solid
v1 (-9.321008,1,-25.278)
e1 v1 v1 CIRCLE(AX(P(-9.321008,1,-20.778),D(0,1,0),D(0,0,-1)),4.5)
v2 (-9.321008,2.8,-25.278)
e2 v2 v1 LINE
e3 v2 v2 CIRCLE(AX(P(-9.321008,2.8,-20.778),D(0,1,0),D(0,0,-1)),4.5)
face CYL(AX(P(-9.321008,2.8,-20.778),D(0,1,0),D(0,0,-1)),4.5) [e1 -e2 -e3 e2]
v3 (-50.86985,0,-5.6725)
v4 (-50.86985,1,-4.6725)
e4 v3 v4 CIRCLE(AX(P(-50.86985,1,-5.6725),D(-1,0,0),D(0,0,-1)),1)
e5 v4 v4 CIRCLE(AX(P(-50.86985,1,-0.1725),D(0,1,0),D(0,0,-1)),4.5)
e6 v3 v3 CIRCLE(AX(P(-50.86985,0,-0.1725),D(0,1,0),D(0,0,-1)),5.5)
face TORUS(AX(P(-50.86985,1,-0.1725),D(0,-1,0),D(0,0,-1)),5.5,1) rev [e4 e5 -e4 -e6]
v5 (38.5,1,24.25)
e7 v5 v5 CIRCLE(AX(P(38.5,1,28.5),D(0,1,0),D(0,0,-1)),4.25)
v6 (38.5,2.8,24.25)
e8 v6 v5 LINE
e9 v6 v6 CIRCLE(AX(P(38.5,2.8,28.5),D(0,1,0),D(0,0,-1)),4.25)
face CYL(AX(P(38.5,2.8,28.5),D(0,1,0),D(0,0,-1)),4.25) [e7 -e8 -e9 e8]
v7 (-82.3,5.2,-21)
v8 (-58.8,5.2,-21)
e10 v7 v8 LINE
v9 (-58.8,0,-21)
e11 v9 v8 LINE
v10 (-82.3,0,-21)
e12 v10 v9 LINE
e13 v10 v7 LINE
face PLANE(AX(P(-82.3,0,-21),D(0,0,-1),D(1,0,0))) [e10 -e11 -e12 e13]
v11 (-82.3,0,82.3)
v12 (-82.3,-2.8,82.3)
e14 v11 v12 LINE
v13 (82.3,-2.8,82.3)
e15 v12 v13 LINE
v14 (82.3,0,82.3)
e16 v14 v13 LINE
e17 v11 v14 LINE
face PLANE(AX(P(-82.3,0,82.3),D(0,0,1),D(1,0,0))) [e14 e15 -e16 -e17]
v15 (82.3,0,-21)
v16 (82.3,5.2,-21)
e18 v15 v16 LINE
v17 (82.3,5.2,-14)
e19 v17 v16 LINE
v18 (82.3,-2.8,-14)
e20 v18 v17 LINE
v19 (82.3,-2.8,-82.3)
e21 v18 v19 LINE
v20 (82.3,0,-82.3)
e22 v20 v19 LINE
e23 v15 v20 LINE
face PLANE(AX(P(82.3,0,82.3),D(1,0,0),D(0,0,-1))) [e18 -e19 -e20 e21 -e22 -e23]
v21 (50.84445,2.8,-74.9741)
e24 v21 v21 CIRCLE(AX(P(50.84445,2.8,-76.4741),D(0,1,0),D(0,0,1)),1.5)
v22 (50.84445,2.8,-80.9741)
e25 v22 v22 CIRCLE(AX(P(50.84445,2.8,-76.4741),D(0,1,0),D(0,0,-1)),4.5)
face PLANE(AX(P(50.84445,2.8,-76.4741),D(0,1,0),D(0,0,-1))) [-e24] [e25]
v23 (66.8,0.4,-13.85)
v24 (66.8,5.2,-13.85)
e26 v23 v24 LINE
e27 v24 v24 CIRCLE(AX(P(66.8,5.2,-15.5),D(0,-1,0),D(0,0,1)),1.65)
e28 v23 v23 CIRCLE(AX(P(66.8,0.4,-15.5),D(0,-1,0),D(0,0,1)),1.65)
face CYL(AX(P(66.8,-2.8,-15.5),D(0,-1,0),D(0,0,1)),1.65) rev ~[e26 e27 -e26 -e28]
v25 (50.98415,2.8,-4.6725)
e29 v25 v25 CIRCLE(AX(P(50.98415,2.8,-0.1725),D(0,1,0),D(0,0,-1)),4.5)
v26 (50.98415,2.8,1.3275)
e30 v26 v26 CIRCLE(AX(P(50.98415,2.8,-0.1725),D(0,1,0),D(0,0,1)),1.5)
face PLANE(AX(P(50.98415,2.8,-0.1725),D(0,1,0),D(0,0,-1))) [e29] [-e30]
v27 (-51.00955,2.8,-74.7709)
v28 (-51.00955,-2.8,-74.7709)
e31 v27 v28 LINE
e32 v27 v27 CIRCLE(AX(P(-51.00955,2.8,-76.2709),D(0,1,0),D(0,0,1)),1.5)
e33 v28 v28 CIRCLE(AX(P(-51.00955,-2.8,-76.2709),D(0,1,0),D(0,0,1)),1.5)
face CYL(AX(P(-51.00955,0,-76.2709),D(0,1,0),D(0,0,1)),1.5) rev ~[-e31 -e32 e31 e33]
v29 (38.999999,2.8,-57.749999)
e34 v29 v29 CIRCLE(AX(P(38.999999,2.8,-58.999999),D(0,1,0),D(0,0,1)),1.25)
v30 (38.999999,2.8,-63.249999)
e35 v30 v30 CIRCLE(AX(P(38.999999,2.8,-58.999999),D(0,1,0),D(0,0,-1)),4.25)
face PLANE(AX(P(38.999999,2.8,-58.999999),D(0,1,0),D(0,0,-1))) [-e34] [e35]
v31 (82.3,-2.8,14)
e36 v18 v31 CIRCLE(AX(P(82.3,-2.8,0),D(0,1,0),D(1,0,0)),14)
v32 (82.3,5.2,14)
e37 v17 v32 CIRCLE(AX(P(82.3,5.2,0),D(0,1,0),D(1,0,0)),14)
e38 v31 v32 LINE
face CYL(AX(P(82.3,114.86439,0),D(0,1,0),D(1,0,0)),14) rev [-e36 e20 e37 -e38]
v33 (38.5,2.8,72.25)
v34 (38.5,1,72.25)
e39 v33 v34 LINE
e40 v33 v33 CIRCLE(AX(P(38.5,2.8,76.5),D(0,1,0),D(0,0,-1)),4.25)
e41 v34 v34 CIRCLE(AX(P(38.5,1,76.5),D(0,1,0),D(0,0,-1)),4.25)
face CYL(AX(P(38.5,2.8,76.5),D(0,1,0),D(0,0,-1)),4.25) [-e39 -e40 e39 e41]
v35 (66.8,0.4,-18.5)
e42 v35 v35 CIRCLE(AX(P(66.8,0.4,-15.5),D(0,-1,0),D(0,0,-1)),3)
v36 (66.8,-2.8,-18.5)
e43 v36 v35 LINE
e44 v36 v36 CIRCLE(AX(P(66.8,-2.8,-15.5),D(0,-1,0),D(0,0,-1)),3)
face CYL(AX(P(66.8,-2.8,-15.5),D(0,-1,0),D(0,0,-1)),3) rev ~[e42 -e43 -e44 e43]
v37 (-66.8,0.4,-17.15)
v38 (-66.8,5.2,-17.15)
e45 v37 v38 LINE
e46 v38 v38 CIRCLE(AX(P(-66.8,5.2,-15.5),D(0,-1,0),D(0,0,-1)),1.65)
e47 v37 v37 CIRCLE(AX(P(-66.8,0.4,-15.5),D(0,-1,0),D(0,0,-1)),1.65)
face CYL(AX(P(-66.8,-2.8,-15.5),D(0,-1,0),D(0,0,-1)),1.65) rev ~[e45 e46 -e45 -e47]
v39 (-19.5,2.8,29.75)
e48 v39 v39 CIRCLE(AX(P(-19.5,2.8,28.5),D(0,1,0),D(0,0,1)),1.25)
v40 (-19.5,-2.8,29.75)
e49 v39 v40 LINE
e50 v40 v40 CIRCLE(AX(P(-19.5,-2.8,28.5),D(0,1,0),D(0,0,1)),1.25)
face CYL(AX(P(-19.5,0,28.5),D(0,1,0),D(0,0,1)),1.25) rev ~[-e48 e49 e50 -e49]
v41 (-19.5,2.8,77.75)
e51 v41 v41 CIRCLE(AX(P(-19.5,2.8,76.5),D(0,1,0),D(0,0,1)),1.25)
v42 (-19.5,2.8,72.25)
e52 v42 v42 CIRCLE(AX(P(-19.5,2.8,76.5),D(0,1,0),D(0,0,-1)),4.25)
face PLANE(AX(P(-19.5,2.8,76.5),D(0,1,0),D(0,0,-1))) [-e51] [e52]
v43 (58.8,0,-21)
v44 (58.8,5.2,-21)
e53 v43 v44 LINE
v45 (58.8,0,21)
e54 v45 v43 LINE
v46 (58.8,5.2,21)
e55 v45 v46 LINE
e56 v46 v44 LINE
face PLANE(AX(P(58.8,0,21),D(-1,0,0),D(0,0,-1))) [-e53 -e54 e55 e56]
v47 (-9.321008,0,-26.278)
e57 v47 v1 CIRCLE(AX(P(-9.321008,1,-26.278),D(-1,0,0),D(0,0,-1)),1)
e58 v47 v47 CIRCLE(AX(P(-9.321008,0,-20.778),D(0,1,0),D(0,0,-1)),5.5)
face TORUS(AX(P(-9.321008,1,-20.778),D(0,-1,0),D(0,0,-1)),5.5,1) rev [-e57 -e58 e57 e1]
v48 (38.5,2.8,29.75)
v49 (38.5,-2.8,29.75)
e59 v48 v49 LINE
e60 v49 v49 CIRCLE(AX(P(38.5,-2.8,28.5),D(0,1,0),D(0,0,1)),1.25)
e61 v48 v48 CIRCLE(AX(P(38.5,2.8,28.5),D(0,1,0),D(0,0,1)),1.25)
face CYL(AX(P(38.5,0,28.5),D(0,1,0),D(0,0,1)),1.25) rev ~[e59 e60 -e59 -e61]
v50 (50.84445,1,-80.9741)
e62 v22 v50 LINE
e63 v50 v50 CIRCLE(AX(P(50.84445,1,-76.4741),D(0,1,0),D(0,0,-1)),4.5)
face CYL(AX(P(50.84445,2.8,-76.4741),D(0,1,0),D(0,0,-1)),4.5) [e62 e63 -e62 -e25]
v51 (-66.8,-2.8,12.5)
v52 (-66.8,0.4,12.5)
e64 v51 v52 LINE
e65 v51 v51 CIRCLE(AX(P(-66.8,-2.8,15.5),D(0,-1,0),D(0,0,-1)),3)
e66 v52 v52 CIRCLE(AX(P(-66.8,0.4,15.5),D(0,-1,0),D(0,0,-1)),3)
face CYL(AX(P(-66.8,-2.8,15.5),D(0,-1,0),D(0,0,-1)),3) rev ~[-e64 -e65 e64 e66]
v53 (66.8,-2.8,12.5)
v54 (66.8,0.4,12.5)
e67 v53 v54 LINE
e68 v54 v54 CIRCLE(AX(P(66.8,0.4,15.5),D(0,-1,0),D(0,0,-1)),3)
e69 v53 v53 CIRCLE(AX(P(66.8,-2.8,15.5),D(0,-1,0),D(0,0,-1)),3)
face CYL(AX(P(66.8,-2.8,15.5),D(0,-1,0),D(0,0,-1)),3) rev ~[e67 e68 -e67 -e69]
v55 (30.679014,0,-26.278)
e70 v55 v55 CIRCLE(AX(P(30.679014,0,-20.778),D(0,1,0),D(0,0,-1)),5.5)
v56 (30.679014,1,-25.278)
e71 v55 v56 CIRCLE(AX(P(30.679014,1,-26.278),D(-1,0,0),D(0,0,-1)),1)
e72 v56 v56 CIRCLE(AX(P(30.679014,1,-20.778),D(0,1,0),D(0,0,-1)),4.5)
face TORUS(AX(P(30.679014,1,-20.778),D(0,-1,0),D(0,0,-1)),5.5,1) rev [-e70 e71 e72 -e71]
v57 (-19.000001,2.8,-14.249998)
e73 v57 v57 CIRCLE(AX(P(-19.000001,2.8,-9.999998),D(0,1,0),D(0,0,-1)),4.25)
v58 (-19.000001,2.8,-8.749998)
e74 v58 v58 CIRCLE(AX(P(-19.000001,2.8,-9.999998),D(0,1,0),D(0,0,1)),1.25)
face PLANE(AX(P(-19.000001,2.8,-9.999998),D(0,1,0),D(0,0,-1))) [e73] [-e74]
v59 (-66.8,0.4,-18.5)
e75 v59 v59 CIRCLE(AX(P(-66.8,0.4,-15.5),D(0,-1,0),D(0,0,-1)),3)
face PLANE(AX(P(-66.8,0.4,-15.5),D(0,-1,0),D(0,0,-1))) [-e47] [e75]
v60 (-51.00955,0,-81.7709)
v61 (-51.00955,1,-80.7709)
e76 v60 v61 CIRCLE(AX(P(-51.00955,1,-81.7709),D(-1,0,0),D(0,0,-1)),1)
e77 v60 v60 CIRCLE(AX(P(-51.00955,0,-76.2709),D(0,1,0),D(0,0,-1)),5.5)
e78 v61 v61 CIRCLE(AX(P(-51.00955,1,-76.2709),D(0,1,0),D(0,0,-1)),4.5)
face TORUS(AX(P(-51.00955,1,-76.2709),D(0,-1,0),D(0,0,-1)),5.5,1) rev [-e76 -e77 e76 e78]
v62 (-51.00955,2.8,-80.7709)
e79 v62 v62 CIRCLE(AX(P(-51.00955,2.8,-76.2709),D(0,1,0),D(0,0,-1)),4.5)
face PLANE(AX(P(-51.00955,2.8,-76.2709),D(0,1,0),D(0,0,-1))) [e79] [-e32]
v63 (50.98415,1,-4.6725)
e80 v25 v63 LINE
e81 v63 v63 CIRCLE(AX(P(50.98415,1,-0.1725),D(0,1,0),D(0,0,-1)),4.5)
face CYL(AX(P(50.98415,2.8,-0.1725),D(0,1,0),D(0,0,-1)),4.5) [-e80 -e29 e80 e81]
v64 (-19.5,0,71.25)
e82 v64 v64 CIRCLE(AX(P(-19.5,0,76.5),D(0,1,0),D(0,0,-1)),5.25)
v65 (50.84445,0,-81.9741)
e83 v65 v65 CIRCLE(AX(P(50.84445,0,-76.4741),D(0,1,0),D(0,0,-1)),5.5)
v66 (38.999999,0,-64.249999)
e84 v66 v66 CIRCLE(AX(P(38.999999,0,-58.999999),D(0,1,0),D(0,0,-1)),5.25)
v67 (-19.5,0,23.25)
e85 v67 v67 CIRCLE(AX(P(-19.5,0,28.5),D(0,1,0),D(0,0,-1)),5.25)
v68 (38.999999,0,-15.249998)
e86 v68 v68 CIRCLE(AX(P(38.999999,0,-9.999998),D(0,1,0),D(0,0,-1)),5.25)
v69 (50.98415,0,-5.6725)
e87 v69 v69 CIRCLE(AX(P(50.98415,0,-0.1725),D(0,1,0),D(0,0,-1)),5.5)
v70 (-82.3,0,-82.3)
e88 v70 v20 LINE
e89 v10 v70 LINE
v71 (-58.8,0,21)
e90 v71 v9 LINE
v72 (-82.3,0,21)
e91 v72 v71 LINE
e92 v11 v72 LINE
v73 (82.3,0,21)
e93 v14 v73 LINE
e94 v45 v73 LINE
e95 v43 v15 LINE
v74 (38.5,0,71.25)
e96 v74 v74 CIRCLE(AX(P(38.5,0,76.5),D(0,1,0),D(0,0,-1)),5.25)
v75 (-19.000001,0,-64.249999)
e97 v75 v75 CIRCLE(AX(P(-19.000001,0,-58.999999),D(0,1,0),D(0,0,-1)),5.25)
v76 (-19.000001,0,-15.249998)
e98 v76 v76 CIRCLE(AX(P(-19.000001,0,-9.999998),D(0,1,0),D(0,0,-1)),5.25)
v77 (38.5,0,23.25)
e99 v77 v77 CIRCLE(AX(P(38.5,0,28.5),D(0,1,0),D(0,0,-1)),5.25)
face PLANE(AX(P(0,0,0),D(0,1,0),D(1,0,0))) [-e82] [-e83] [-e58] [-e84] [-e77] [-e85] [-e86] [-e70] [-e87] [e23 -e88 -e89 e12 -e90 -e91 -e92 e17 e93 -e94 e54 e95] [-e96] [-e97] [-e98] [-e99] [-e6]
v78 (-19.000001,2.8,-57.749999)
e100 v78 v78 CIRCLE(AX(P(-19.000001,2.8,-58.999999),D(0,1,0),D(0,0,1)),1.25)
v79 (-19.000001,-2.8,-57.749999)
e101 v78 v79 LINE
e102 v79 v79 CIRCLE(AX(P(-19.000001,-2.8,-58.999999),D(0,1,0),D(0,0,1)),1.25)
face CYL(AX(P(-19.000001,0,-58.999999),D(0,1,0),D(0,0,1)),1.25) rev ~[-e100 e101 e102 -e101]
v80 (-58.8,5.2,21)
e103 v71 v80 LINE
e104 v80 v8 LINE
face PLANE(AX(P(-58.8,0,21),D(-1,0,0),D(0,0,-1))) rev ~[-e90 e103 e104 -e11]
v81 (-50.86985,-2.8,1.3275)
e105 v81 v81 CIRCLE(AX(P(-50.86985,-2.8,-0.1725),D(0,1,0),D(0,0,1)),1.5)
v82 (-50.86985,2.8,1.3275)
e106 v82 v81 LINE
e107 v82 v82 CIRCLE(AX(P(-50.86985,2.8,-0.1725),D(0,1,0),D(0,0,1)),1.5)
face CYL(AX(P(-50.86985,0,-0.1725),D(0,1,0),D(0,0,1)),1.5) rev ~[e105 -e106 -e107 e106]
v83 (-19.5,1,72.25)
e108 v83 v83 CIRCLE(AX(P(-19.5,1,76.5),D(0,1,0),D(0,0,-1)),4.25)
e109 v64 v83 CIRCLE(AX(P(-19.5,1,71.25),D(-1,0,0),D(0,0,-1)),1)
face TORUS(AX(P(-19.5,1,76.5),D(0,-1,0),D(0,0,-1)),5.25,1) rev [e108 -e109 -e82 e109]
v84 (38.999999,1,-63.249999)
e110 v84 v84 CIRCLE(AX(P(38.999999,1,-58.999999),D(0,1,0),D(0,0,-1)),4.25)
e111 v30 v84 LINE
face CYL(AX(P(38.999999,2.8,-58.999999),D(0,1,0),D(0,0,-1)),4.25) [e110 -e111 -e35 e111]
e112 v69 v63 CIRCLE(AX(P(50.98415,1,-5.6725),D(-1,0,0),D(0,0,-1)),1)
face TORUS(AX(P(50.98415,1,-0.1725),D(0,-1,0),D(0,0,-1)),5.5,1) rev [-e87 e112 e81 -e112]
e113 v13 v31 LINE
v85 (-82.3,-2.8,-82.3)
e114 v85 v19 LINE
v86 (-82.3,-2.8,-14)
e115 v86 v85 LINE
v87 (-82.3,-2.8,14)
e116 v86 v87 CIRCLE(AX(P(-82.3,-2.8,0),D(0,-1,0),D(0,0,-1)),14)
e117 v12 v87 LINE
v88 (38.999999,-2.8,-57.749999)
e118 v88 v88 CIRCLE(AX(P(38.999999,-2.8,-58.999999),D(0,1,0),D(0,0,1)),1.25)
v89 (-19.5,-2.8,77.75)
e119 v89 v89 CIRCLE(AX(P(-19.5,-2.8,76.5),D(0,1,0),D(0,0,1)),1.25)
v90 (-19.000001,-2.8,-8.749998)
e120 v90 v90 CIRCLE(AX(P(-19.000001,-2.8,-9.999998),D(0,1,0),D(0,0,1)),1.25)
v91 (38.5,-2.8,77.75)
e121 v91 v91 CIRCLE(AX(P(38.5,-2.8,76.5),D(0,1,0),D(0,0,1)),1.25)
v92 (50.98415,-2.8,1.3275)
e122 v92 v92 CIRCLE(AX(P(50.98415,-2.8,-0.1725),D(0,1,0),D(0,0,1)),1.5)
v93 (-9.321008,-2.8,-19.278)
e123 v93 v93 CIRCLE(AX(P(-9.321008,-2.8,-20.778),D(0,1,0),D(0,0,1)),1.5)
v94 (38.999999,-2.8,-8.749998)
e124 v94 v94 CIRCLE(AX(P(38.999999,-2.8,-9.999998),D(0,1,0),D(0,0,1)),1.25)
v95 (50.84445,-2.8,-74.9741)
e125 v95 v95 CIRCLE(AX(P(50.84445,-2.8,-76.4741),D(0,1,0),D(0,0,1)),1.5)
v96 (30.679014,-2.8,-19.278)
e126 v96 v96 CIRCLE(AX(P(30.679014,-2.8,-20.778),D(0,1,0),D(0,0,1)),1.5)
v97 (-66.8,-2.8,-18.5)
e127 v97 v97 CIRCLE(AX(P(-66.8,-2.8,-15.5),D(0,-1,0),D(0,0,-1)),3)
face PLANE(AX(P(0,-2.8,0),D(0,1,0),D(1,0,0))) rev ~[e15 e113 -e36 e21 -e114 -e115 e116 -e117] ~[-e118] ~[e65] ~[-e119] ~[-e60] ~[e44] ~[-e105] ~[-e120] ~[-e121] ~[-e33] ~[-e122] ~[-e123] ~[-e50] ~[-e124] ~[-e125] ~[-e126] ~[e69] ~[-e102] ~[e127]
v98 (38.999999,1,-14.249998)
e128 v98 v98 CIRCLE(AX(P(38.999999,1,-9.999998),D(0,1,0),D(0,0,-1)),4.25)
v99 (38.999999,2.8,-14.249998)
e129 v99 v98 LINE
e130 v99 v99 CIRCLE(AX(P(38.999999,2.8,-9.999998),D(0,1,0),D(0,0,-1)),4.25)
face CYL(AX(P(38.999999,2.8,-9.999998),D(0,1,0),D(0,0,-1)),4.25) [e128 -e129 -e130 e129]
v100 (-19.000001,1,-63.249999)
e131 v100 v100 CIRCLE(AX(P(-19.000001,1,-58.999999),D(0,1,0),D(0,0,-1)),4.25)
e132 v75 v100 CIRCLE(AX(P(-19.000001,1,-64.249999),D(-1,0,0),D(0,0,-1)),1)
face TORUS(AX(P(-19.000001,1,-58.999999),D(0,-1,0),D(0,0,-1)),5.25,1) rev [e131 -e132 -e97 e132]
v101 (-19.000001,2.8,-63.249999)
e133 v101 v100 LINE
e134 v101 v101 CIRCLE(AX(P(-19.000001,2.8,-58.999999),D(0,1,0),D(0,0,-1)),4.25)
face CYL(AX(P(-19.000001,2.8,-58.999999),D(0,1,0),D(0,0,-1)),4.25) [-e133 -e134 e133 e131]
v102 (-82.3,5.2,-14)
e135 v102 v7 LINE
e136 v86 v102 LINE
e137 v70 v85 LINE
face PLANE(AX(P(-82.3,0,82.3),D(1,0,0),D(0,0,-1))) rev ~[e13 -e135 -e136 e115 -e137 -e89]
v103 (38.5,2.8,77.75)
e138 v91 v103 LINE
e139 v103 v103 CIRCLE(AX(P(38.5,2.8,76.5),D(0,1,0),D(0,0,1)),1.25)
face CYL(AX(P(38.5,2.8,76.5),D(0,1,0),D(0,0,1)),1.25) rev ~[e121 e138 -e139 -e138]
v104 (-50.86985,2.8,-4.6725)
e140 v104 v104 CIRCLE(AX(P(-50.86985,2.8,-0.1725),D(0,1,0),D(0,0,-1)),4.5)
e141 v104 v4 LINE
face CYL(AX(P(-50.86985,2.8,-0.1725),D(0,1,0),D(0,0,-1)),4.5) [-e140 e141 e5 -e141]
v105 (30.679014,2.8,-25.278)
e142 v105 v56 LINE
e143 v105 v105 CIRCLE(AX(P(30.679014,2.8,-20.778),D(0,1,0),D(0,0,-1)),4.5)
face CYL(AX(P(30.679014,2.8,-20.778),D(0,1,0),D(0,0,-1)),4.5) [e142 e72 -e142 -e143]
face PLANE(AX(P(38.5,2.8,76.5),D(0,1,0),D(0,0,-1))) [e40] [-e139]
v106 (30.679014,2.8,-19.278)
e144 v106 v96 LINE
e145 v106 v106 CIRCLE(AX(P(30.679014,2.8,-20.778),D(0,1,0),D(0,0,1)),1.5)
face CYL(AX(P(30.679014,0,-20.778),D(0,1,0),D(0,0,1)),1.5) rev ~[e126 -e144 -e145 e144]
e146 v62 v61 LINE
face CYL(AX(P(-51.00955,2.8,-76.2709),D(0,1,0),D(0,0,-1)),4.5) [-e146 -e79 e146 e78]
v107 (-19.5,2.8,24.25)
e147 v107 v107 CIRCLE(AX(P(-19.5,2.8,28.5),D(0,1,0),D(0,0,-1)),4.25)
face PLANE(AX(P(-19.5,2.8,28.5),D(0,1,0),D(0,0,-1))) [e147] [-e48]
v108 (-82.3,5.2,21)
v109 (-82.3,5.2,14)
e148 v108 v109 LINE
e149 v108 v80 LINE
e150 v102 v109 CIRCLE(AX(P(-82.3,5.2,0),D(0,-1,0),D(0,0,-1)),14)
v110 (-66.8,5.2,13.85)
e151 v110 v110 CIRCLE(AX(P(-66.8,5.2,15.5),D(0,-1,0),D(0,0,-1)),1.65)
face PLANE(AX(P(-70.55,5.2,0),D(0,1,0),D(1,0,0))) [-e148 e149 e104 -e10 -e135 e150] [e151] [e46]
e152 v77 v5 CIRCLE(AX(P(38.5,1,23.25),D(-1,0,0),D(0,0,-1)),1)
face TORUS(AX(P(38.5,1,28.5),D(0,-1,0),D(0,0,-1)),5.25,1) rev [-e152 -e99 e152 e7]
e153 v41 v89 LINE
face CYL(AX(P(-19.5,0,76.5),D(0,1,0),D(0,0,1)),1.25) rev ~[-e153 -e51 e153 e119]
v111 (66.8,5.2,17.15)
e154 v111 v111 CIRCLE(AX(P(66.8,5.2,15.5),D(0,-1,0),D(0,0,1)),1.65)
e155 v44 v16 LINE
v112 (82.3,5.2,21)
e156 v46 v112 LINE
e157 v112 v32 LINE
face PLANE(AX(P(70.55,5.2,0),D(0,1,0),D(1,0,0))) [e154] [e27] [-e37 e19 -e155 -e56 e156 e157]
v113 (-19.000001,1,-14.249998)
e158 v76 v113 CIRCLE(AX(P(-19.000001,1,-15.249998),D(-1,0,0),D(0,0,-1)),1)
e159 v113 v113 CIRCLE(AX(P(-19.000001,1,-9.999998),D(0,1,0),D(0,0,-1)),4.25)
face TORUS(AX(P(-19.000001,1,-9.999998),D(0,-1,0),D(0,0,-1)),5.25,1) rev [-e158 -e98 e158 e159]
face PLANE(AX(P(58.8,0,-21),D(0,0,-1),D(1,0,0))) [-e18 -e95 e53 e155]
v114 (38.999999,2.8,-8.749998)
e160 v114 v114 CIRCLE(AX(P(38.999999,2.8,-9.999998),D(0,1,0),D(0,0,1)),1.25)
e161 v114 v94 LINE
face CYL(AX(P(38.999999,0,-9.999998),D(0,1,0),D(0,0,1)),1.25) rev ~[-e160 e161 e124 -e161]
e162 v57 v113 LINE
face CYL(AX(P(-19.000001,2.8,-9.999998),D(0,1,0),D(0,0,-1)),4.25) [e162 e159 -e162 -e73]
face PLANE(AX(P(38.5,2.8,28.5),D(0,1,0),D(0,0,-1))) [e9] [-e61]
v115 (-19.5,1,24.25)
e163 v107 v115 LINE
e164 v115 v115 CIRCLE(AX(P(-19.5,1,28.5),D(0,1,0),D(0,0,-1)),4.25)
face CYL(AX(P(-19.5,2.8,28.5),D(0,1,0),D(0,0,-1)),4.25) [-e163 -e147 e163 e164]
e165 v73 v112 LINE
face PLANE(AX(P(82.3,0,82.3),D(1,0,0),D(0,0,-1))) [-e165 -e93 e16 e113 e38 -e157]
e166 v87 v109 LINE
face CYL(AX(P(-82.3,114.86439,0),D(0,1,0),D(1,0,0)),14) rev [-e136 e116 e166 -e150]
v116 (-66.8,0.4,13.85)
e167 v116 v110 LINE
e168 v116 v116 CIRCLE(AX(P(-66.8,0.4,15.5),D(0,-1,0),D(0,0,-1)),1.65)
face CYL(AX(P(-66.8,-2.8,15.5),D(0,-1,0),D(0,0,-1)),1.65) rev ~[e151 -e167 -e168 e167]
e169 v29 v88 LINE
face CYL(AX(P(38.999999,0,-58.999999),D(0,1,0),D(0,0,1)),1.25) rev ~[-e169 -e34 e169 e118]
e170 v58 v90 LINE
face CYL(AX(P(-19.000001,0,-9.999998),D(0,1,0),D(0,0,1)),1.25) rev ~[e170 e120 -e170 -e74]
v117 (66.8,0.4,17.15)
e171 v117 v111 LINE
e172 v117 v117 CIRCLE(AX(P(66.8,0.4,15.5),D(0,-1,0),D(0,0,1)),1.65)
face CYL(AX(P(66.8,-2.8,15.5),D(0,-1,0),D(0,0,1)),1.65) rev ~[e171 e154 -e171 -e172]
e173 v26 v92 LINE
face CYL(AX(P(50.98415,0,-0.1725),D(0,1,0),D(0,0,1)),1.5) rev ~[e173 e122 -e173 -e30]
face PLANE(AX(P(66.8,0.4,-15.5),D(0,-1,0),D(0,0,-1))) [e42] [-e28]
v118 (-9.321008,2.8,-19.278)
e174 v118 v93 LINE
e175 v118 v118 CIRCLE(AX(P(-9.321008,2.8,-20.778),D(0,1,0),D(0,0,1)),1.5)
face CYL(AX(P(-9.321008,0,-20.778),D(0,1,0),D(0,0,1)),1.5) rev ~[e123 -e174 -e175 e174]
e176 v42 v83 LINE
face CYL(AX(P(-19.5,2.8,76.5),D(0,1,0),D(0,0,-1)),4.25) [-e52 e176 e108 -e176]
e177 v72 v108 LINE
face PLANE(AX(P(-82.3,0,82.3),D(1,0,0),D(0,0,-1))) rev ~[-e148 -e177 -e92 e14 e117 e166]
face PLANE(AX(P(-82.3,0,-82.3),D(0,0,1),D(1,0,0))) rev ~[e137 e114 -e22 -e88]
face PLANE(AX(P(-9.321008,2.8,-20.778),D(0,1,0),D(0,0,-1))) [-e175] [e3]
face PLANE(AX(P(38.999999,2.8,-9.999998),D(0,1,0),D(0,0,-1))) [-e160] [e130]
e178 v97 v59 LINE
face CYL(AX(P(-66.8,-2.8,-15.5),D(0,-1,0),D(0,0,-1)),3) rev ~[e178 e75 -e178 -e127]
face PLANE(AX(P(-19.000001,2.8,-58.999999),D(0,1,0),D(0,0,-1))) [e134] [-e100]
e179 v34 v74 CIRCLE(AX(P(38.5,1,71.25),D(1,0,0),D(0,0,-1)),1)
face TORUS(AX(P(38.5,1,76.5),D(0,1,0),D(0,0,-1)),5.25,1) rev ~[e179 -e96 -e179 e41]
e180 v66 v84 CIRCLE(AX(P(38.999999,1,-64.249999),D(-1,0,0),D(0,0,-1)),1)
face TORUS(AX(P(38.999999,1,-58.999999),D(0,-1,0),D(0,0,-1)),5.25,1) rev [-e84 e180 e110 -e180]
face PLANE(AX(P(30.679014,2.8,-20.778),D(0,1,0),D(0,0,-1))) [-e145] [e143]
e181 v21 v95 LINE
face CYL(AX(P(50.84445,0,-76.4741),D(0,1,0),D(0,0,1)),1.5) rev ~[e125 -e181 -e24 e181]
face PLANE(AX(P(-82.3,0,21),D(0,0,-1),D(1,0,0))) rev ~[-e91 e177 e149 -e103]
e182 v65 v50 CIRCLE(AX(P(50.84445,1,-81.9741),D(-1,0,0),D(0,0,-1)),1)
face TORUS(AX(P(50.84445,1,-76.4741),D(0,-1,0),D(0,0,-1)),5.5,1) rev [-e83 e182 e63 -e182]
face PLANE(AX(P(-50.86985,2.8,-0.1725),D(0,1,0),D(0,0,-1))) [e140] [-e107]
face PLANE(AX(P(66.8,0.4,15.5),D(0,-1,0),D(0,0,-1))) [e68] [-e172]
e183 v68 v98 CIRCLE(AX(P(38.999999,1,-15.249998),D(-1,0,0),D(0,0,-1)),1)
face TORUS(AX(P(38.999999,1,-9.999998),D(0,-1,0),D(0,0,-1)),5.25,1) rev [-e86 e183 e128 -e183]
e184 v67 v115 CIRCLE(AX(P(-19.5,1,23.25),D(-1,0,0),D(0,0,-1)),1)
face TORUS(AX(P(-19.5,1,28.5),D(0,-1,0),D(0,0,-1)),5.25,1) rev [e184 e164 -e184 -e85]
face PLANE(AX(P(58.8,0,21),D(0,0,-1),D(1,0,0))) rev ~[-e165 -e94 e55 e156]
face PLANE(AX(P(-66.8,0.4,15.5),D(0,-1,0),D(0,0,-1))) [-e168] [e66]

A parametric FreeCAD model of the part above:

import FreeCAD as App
import Part
import Sketcher

V = App.Vector


def edges_at(feature, points):
    """Names of the edges that pass closest to the given points."""
    edges = feature.Shape.Edges
    near = lambda p: min(range(len(edges)), key=lambda i: edges[i].distToShape(Part.Vertex(*p))[0])
    return sorted({f"Edge{near(p) + 1}" for p in points})

doc = App.newDocument("Part")
body = doc.addObject("PartDesign::Body", "Body")

# Sketch on XZ plane
sketch1 = body.newObject("Sketcher::SketchObject", "Sketch")
sketch1.AttachmentSupport = (doc.getObject("XZ_Plane"), [""])
sketch1.MapMode = "FlatFace"
sketch1.addGeometry(Part.LineSegment(V(-82, -82, 0), V(-82, 82, 0)), False)
sketch1.addGeometry(Part.LineSegment(V(-82, 82, 0), V(82, 82, 0)), False)
sketch1.addGeometry(Part.LineSegment(V(82, 82, 0), V(82, -82, 0)), False)
sketch1.addGeometry(Part.LineSegment(V(82, -82, 0), V(-82, -82, 0)), False)
sketch1.addConstraint(Sketcher.Constraint("Coincident", 0, 2, 1, 1))
sketch1.addConstraint(Sketcher.Constraint("Coincident", 1, 2, 2, 1))
sketch1.addConstraint(Sketcher.Constraint("Coincident", 2, 2, 3, 1))
sketch1.addConstraint(Sketcher.Constraint("Coincident", 3, 2, 0, 1))
sketch1.addConstraint(Sketcher.Constraint("Vertical", 0))
sketch1.addConstraint(Sketcher.Constraint("Horizontal", 1))
sketch1.addConstraint(Sketcher.Constraint("Vertical", 2))
sketch1.addConstraint(Sketcher.Constraint("Horizontal", 3))
sketch1.addConstraint(Sketcher.Constraint("Symmetric", 0, 2, 2, 2, -1, 1))
sketch1.addConstraint(Sketcher.Constraint("Equal", 3, 0))
sketch1.addConstraint(Sketcher.Constraint("DistanceX", 1, 1, 1, 2, 164.6))
pad1 = body.newObject("PartDesign::Pad", "Pad")
pad1.Profile = sketch1
pad1.Length = 2.8

# Sketch on XZ plane
sketch2 = body.newObject("Sketcher::SketchObject", "Sketch001")
sketch2.AttachmentSupport = (doc.getObject("XZ_Plane"), [""])
sketch2.MapMode = "FlatFace"
sketch2.addGeometry(Part.LineSegment(V(-82, -21, 0), V(-82, 21, 0)), False)
sketch2.addGeometry(Part.LineSegment(V(-82, 21, 0), V(-59, 21, 0)), False)
sketch2.addGeometry(Part.LineSegment(V(-59, 21, 0), V(-59, -21, 0)), False)
sketch2.addGeometry(Part.LineSegment(V(-59, -21, 0), V(-82, -21, 0)), False)
sketch2.addGeometry(Part.LineSegment(V(59, -21, 0), V(59, 21, 0)), False)
sketch2.addGeometry(Part.LineSegment(V(59, 21, 0), V(82, 21, 0)), False)
sketch2.addGeometry(Part.LineSegment(V(82, 21, 0), V(82, -21, 0)), False)
sketch2.addGeometry(Part.LineSegment(V(82, -21, 0), V(59, -21, 0)), False)
sketch2.addConstraint(Sketcher.Constraint("Coincident", 0, 2, 1, 1))
sketch2.addConstraint(Sketcher.Constraint("Coincident", 1, 2, 2, 1))
sketch2.addConstraint(Sketcher.Constraint("Coincident", 2, 2, 3, 1))
sketch2.addConstraint(Sketcher.Constraint("Coincident", 3, 2, 0, 1))
sketch2.addConstraint(Sketcher.Constraint("Coincident", 4, 2, 5, 1))
sketch2.addConstraint(Sketcher.Constraint("Coincident", 5, 2, 6, 1))
sketch2.addConstraint(Sketcher.Constraint("Coincident", 6, 2, 7, 1))
sketch2.addConstraint(Sketcher.Constraint("Coincident", 7, 2, 4, 1))
sketch2.addConstraint(Sketcher.Constraint("Vertical", 0))
sketch2.addConstraint(Sketcher.Constraint("Horizontal", 1))
sketch2.addConstraint(Sketcher.Constraint("Vertical", 2))
sketch2.addConstraint(Sketcher.Constraint("Horizontal", 3))
sketch2.addConstraint(Sketcher.Constraint("Vertical", 4))
sketch2.addConstraint(Sketcher.Constraint("Horizontal", 5))
sketch2.addConstraint(Sketcher.Constraint("Vertical", 6))
sketch2.addConstraint(Sketcher.Constraint("Horizontal", 7))
sketch2.addConstraint(Sketcher.Constraint("Symmetric", 2, 2, 4, 2, -1, 1))
sketch2.addConstraint(Sketcher.Constraint("Symmetric", 0, 2, 6, 2, -1, 1))
sketch2.addConstraint(Sketcher.Constraint("Horizontal", 1, 2, 4, 2))
sketch2.addConstraint(Sketcher.Constraint("DistanceY", 0, 1, 0, 2, 42.0))
sketch2.addConstraint(Sketcher.Constraint("DistanceX", 1, 1, 1, 2, 23.5))
sketch2.addConstraint(Sketcher.Constraint("DistanceX", 0, 2, -1, 1, 82.3))
pad2 = body.newObject("PartDesign::Pad", "Pad001")
pad2.Profile = sketch2
pad2.Length = 5.2
pad2.Reversed = True

# Sketch on XZ plane
sketch3 = body.newObject("Sketcher::SketchObject", "Sketch002")
sketch3.AttachmentSupport = (doc.getObject("XZ_Plane"), [""])
sketch3.MapMode = "FlatFace"
sketch3.AttachmentOffset = App.Placement(V(0, 0, 2.8), App.Rotation())
sketch3.addGeometry(Part.Circle(V(82, 0, 0), V(0, 0, 1), 14), False)
sketch3.addGeometry(Part.Circle(V(-82, 0, 0), V(0, 0, 1), 14), False)
sketch3.addConstraint(Sketcher.Constraint("Equal", 0, 1))
sketch3.addConstraint(Sketcher.Constraint("Symmetric", 0, 3, 1, 3, -1, 1))
sketch3.addConstraint(Sketcher.Constraint("PointOnObject", 0, 3, -1))
sketch3.addConstraint(Sketcher.Constraint("Diameter", 0, 28.0))
sketch3.addConstraint(Sketcher.Constraint("DistanceX", -1, 1, 0, 3, 82.3))
pocket1 = body.newObject("PartDesign::Pocket", "Pocket")
pocket1.Profile = sketch3
pocket1.Type = "ThroughAll"
pocket1.Midplane = True

# Sketch on XZ plane
sketch4 = body.newObject("Sketcher::SketchObject", "Sketch003")
sketch4.AttachmentSupport = (doc.getObject("XZ_Plane"), [""])
sketch4.MapMode = "FlatFace"
sketch4.AttachmentOffset = App.Placement(V(0, 0, 2.8), App.Rotation())
sketch4.addGeometry(Part.Circle(V(-66.8, 15.5, 0), V(0, 0, 1), 1.6), False)
sketch4.addGeometry(Part.Circle(V(-66.8, -15.5, 0), V(0, 0, 1), 1.6), False)
sketch4.addGeometry(Part.Circle(V(66.8, 15.5, 0), V(0, 0, 1), 1.6), False)
sketch4.addGeometry(Part.Circle(V(66.8, -15.5, 0), V(0, 0, 1), 1.6), False)
sketch4.addConstraint(Sketcher.Constraint("Equal", 0, 1))
sketch4.addConstraint(Sketcher.Constraint("Equal", 1, 2))
sketch4.addConstraint(Sketcher.Constraint("Equal", 2, 3))
sketch4.addConstraint(Sketcher.Constraint("Symmetric", 1, 3, 2, 3, -1, 1))
sketch4.addConstraint(Sketcher.Constraint("Symmetric", 0, 3, 3, 3, -1, 1))
sketch4.addConstraint(Sketcher.Constraint("Symmetric", 0, 3, 2, 3, -2))
sketch4.addConstraint(Sketcher.Constraint("Diameter", 0, 3.3))
sketch4.addConstraint(Sketcher.Constraint("DistanceY", 1, 3, 0, 3, 31.0))
sketch4.addConstraint(Sketcher.Constraint("DistanceX", 0, 3, -1, 1, 66.8))
pocket2 = body.newObject("PartDesign::Pocket", "Pocket001")
pocket2.Profile = sketch4
pocket2.Type = "ThroughAll"

# Sketch on XZ plane
sketch5 = body.newObject("Sketcher::SketchObject", "Sketch004")
sketch5.AttachmentSupport = (doc.getObject("XZ_Plane"), [""])
sketch5.MapMode = "FlatFace"
sketch5.AttachmentOffset = App.Placement(V(0, 0, 2.8), App.Rotation())
sketch5.addGeometry(Part.Circle(V(66.8, 15.5, 0), V(0, 0, 1), 3), False)
sketch5.addGeometry(Part.Circle(V(66.8, -15.5, 0), V(0, 0, 1), 3), False)
sketch5.addGeometry(Part.Circle(V(-66.8, -15.5, 0), V(0, 0, 1), 3), False)
sketch5.addGeometry(Part.Circle(V(-66.8, 15.5, 0), V(0, 0, 1), 3), False)
sketch5.addConstraint(Sketcher.Constraint("Equal", 0, 1))
sketch5.addConstraint(Sketcher.Constraint("Equal", 1, 2))
sketch5.addConstraint(Sketcher.Constraint("Equal", 2, 3))
sketch5.addConstraint(Sketcher.Constraint("Symmetric", 0, 3, 2, 3, -1, 1))
sketch5.addConstraint(Sketcher.Constraint("Symmetric", 1, 3, 3, 3, -1, 1))
sketch5.addConstraint(Sketcher.Constraint("Symmetric", 1, 3, 2, 3, -2))
sketch5.addConstraint(Sketcher.Constraint("Diameter", 0, 6.0))
sketch5.addConstraint(Sketcher.Constraint("DistanceY", 1, 3, 0, 3, 31.0))
sketch5.addConstraint(Sketcher.Constraint("DistanceX", -1, 1, 0, 3, 66.8))
pocket3 = body.newObject("PartDesign::Pocket", "Pocket002")
pocket3.Profile = sketch5
pocket3.Length = 3.2

# Sketch on XZ plane
sketch6 = body.newObject("Sketcher::SketchObject", "Sketch005")
sketch6.AttachmentSupport = (doc.getObject("XZ_Plane"), [""])
sketch6.MapMode = "FlatFace"
sketch6.addGeometry(Part.Circle(V(-19.5, 76.5, 0), V(0, 0, 1), 1.2), False)
sketch6.addGeometry(Part.Circle(V(-19.5, 28.5, 0), V(0, 0, 1), 1.2), False)
sketch6.addGeometry(Part.Circle(V(38.5, 28.5, 0), V(0, 0, 1), 1.2), False)
sketch6.addGeometry(Part.Circle(V(38.5, 76.5, 0), V(0, 0, 1), 1.2), False)
sketch6.addGeometry(Part.Circle(V(-9.3, -20.8, 0), V(0, 0, 1), 1.5), False)
sketch6.addGeometry(Part.Circle(V(30.7, -20.8, 0), V(0, 0, 1), 1.5), False)
sketch6.addGeometry(Part.Circle(V(-50.9, -0.2, 0), V(0, 0, 1), 1.5), False)
sketch6.addGeometry(Part.Circle(V(-19, -10, 0), V(0, 0, 1), 1.2), False)
sketch6.addGeometry(Part.Circle(V(39, -10, 0), V(0, 0, 1), 1.2), False)
sketch6.addGeometry(Part.Circle(V(51, -0.2, 0), V(0, 0, 1), 1.5), False)
sketch6.addGeometry(Part.Circle(V(50.8, -76.5, 0), V(0, 0, 1), 1.5), False)
sketch6.addGeometry(Part.Circle(V(-51, -76.3, 0), V(0, 0, 1), 1.5), False)
sketch6.addGeometry(Part.Circle(V(-19, -59, 0), V(0, 0, 1), 1.2), False)
sketch6.addGeometry(Part.Circle(V(39, -59, 0), V(0, 0, 1), 1.2), False)
sketch6.addConstraint(Sketcher.Constraint("Equal", 0, 1))
sketch6.addConstraint(Sketcher.Constraint("Equal", 1, 2))
sketch6.addConstraint(Sketcher.Constraint("Equal", 2, 3))
sketch6.addConstraint(Sketcher.Constraint("Equal", 4, 5))
sketch6.addConstraint(Sketcher.Constraint("Equal", 5, 6))
sketch6.addConstraint(Sketcher.Constraint("Equal", 3, 7))
sketch6.addConstraint(Sketcher.Constraint("Equal", 7, 8))
sketch6.addConstraint(Sketcher.Constraint("Equal", 6, 9))
sketch6.addConstraint(Sketcher.Constraint("Equal", 9, 10))
sketch6.addConstraint(Sketcher.Constraint("Equal", 10, 11))
sketch6.addConstraint(Sketcher.Constraint("Equal", 8, 12))
sketch6.addConstraint(Sketcher.Constraint("Equal", 12, 13))
sketch6.addConstraint(Sketcher.Constraint("Horizontal", 1, 3, 2, 3))
sketch6.addConstraint(Sketcher.Constraint("Horizontal", 0, 3, 3, 3))
sketch6.addConstraint(Sketcher.Constraint("Horizontal", 4, 3, 5, 3))
sketch6.addConstraint(Sketcher.Constraint("Horizontal", 7, 3, 8, 3))
sketch6.addConstraint(Sketcher.Constraint("Horizontal", 6, 3, 9, 3))
sketch6.addConstraint(Sketcher.Constraint("Horizontal", 12, 3, 13, 3))
sketch6.addConstraint(Sketcher.Constraint("Vertical", 0, 3, 1, 3))
sketch6.addConstraint(Sketcher.Constraint("Vertical", 2, 3, 3, 3))
sketch6.addConstraint(Sketcher.Constraint("Vertical", 7, 3, 12, 3))
sketch6.addConstraint(Sketcher.Constraint("Vertical", 8, 3, 13, 3))
sketch6.addConstraint(Sketcher.Constraint("Diameter", 4, 3.0))
sketch6.addConstraint(Sketcher.Constraint("Diameter", 0, 2.5))
sketch6.addConstraint(Sketcher.Constraint("DistanceX", 7, 3, -1, 1, 19.000001))
sketch6.addConstraint(Sketcher.Constraint("DistanceY", 7, 3, -1, 1, 9.999998))
sketch6.addConstraint(Sketcher.Constraint("DistanceX", -1, 1, 8, 3, 38.999999))
sketch6.addConstraint(Sketcher.Constraint("DistanceY", 12, 3, -1, 1, 58.999999))
sketch6.addConstraint(Sketcher.Constraint("DistanceY", 1, 3, 0, 3, 48.0))
sketch6.addConstraint(Sketcher.Constraint("DistanceX", 1, 3, 2, 3, 58.0))
sketch6.addConstraint(Sketcher.Constraint("DistanceX", 0, 3, -1, 1, 19.5))
sketch6.addConstraint(Sketcher.Constraint("DistanceY", -1, 1, 0, 3, 76.5))
sketch6.addConstraint(Sketcher.Constraint("DistanceY", 4, 3, -1, 1, 20.778))
sketch6.addConstraint(Sketcher.Constraint("DistanceX", 11, 3, 10, 3, 101.854))
sketch6.addConstraint(Sketcher.Constraint("DistanceY", 6, 3, -1, 1, 0.1725))
sketch6.addConstraint(Sketcher.Constraint("DistanceY", 10, 3, -1, 1, 76.4741))
sketch6.addConstraint(Sketcher.Constraint("DistanceY", 11, 3, -1, 1, 76.2709))
sketch6.addConstraint(Sketcher.Constraint("DistanceX", 10, 3, 9, 3, 0.1397))
sketch6.addConstraint(Sketcher.Constraint("DistanceX", 11, 3, 6, 3, 0.1397))
sketch6.addConstraint(Sketcher.Constraint("DistanceX", 6, 3, -1, 1, 50.86985))
sketch6.addConstraint(Sketcher.Constraint("DistanceX", 4, 3, 5, 3, 40.000022))
sketch6.addConstraint(Sketcher.Constraint("DistanceX", 4, 3, -1, 1, 9.321008))
pocket4 = body.newObject("PartDesign::Pocket", "Pocket003")
pocket4.Profile = sketch6
pocket4.Type = "ThroughAll"
pocket4.Reversed = True

# Sketch on XZ plane
sketch7 = body.newObject("Sketcher::SketchObject", "Sketch006")
sketch7.AttachmentSupport = (doc.getObject("XZ_Plane"), [""])
sketch7.MapMode = "FlatFace"
sketch7.AttachmentOffset = App.Placement(V(0, 0, -2.8), App.Rotation())
sketch7.addGeometry(Part.Circle(V(38.5, 76.5, 0), V(0, 0, 1), 4.2), False)
sketch7.addGeometry(Part.Circle(V(38.5, 76.5, 0), V(0, 0, 1), 1.2), False)
sketch7.addGeometry(Part.Circle(V(-19.5, 76.5, 0), V(0, 0, 1), 4.2), False)
sketch7.addGeometry(Part.Circle(V(-19.5, 76.5, 0), V(0, 0, 1), 1.2), False)
sketch7.addGeometry(Part.Circle(V(-19.5, 28.5, 0), V(0, 0, 1), 4.2), False)
sketch7.addGeometry(Part.Circle(V(-19.5, 28.5, 0), V(0, 0, 1), 1.2), False)
sketch7.addGeometry(Part.Circle(V(38.5, 28.5, 0), V(0, 0, 1), 4.2), False)
sketch7.addGeometry(Part.Circle(V(38.5, 28.5, 0), V(0, 0, 1), 1.2), False)
sketch7.addGeometry(Part.Circle(V(51, -0.2, 0), V(0, 0, 1), 4.5), False)
sketch7.addGeometry(Part.Circle(V(51, -0.2, 0), V(0, 0, 1), 1.5), False)
sketch7.addGeometry(Part.Circle(V(39, -10, 0), V(0, 0, 1), 4.2), False)
sketch7.addGeometry(Part.Circle(V(39, -10, 0), V(0, 0, 1), 1.2), False)
sketch7.addGeometry(Part.Circle(V(30.7, -20.8, 0), V(0, 0, 1), 4.5), False)
sketch7.addGeometry(Part.Circle(V(30.7, -20.8, 0), V(0, 0, 1), 1.5), False)
sketch7.addGeometry(Part.Circle(V(-9.3, -20.8, 0), V(0, 0, 1), 4.5), False)
sketch7.addGeometry(Part.Circle(V(-9.3, -20.8, 0), V(0, 0, 1), 1.5), False)
sketch7.addGeometry(Part.Circle(V(-19, -10, 0), V(0, 0, 1), 4.2), False)
sketch7.addGeometry(Part.Circle(V(-19, -10, 0), V(0, 0, 1), 1.2), False)
sketch7.addGeometry(Part.Circle(V(-50.9, -0.2, 0), V(0, 0, 1), 4.5), False)
sketch7.addGeometry(Part.Circle(V(-50.9, -0.2, 0), V(0, 0, 1), 1.5), False)
sketch7.addGeometry(Part.Circle(V(50.8, -76.5, 0), V(0, 0, 1), 4.5), False)
sketch7.addGeometry(Part.Circle(V(50.8, -76.5, 0), V(0, 0, 1), 1.5), False)
sketch7.addGeometry(Part.Circle(V(39, -59, 0), V(0, 0, 1), 4.2), False)
sketch7.addGeometry(Part.Circle(V(39, -59, 0), V(0, 0, 1), 1.2), False)
sketch7.addGeometry(Part.Circle(V(-19, -59, 0), V(0, 0, 1), 4.2), False)
sketch7.addGeometry(Part.Circle(V(-19, -59, 0), V(0, 0, 1), 1.2), False)
sketch7.addGeometry(Part.Circle(V(-51, -76.3, 0), V(0, 0, 1), 4.5), False)
sketch7.addGeometry(Part.Circle(V(-51, -76.3, 0), V(0, 0, 1), 1.5), False)
sketch7.addConstraint(Sketcher.Constraint("Coincident", 1, 3, 0, 3))
sketch7.addConstraint(Sketcher.Constraint("Coincident", 3, 3, 2, 3))
sketch7.addConstraint(Sketcher.Constraint("Coincident", 5, 3, 4, 3))
sketch7.addConstraint(Sketcher.Constraint("Coincident", 7, 3, 6, 3))
sketch7.addConstraint(Sketcher.Constraint("Coincident", 9, 3, 8, 3))
sketch7.addConstraint(Sketcher.Constraint("Coincident", 11, 3, 10, 3))
sketch7.addConstraint(Sketcher.Constraint("Coincident", 13, 3, 12, 3))
sketch7.addConstraint(Sketcher.Constraint("Coincident", 15, 3, 14, 3))
sketch7.addConstraint(Sketcher.Constraint("Coincident", 17, 3, 16, 3))
sketch7.addConstraint(Sketcher.Constraint("Coincident", 19, 3, 18, 3))
sketch7.addConstraint(Sketcher.Constraint("Coincident", 21, 3, 20, 3))
sketch7.addConstraint(Sketcher.Constraint("Coincident", 23, 3, 22, 3))
sketch7.addConstraint(Sketcher.Constraint("Coincident", 25, 3, 24, 3))
sketch7.addConstraint(Sketcher.Constraint("Coincident", 27, 3, 26, 3))
sketch7.addConstraint(Sketcher.Constraint("Equal", 0, 2))
sketch7.addConstraint(Sketcher.Constraint("Equal", 1, 3))
sketch7.addConstraint(Sketcher.Constraint("Equal", 2, 4))
sketch7.addConstraint(Sketcher.Constraint("Equal", 3, 5))
sketch7.addConstraint(Sketcher.Constraint("Equal", 4, 6))
sketch7.addConstraint(Sketcher.Constraint("Equal", 5, 7))
sketch7.addConstraint(Sketcher.Constraint("Equal", 6, 10))
sketch7.addConstraint(Sketcher.Constraint("Equal", 7, 11))
sketch7.addConstraint(Sketcher.Constraint("Equal", 8, 12))
sketch7.addConstraint(Sketcher.Constraint("Equal", 9, 13))
sketch7.addConstraint(Sketcher.Constraint("Equal", 12, 14))
sketch7.addConstraint(Sketcher.Constraint("Equal", 13, 15))
sketch7.addConstraint(Sketcher.Constraint("Equal", 10, 16))
sketch7.addConstraint(Sketcher.Constraint("Equal", 11, 17))
sketch7.addConstraint(Sketcher.Constraint("Equal", 14, 18))
sketch7.addConstraint(Sketcher.Constraint("Equal", 15, 19))
sketch7.addConstraint(Sketcher.Constraint("Equal", 18, 20))
sketch7.addConstraint(Sketcher.Constraint("Equal", 19, 21))
sketch7.addConstraint(Sketcher.Constraint("Equal", 16, 22))
sketch7.addConstraint(Sketcher.Constraint("Equal", 17, 23))
sketch7.addConstraint(Sketcher.Constraint("Equal", 22, 24))
sketch7.addConstraint(Sketcher.Constraint("Equal", 23, 25))
sketch7.addConstraint(Sketcher.Constraint("Equal", 20, 26))
sketch7.addConstraint(Sketcher.Constraint("Equal", 21, 27))
sketch7.addConstraint(Sketcher.Constraint("Horizontal", 1, 3, 2, 3))
sketch7.addConstraint(Sketcher.Constraint("Horizontal", 5, 3, 6, 3))
sketch7.addConstraint(Sketcher.Constraint("Horizontal", 13, 3, 14, 3))
sketch7.addConstraint(Sketcher.Constraint("Horizontal", 11, 3, 16, 3))
sketch7.addConstraint(Sketcher.Constraint("Horizontal", 9, 3, 18, 3))
sketch7.addConstraint(Sketcher.Constraint("Horizontal", 23, 3, 24, 3))
sketch7.addConstraint(Sketcher.Constraint("Vertical", 3, 3, 4, 3))
sketch7.addConstraint(Sketcher.Constraint("Vertical", 1, 3, 6, 3))
sketch7.addConstraint(Sketcher.Constraint("Vertical", 11, 3, 22, 3))
sketch7.addConstraint(Sketcher.Constraint("Vertical", 17, 3, 24, 3))
sketch7.addConstraint(Sketcher.Constraint("Diameter", 8, 9.0))
sketch7.addConstraint(Sketcher.Constraint("Diameter", 9, 3.0))
sketch7.addConstraint(Sketcher.Constraint("Diameter", 0, 8.5))
sketch7.addConstraint(Sketcher.Constraint("Diameter", 1, 2.5))
sketch7.addConstraint(Sketcher.Constraint("DistanceX", -1, 1, 10, 3, 38.999999))
sketch7.addConstraint(Sketcher.Constraint("DistanceY", 10, 3, -1, 1, 9.999998))
sketch7.addConstraint(Sketcher.Constraint("DistanceX", 16, 3, -1, 1, 19.000001))
sketch7.addConstraint(Sketcher.Constraint("DistanceY", 22, 3, -1, 1, 58.999999))
sketch7.addConstraint(Sketcher.Constraint("DistanceX", 2, 3, 0, 3, 58.0))
sketch7.addConstraint(Sketcher.Constraint("DistanceY", 4, 3, 2, 3, 48.0))
sketch7.addConstraint(Sketcher.Constraint("DistanceX", -1, 1, 0, 3, 38.5))
sketch7.addConstraint(Sketcher.Constraint("DistanceY", -1, 1, 0, 3, 76.5))
sketch7.addConstraint(Sketcher.Constraint("DistanceY", 12, 3, -1, 1, 20.778))
sketch7.addConstraint(Sketcher.Constraint("DistanceY", 8, 3, -1, 1, 0.1725))
sketch7.addConstraint(Sketcher.Constraint("DistanceY", 20, 3, -1, 1, 76.4741))
sketch7.addConstraint(Sketcher.Constraint("DistanceY", 26, 3, -1, 1, 76.2709))
sketch7.addConstraint(Sketcher.Constraint("DistanceX", 20, 3, 8, 3, 0.1397))
sketch7.addConstraint(Sketcher.Constraint("DistanceX", -1, 1, 8, 3, 50.98415))
sketch7.addConstraint(Sketcher.Constraint("DistanceX", 18, 3, -1, 1, 50.86985))
sketch7.addConstraint(Sketcher.Constraint("DistanceX", 26, 3, -1, 1, 51.00955))
sketch7.addConstraint(Sketcher.Constraint("DistanceX", 14, 3, 12, 3, 40.000022))
sketch7.addConstraint(Sketcher.Constraint("DistanceX", -1, 1, 12, 3, 30.679014))
pad3 = body.newObject("PartDesign::Pad", "Pad002")
pad3.Profile = sketch7
pad3.Length = 2.8
doc.recompute()

fillet = body.newObject("PartDesign::Fillet", "Fillet")
fillet.Base = (pad3, edges_at(pad3, [
    (38.5, 0, 80.75),
    (-19.5, 0, 80.75),
    (-19.5, 0, 32.75),
    (38.5, 0, 32.75),
    (50.984, 0, 4.327),
    (39, 0, -5.75),
    (30.679, 0, -16.278),
    (-9.321, 0, -16.278),
    (-19, 0, -5.75),
    (-50.87, 0, 4.327),
    (50.844, 0, -71.974),
    (39, 0, -54.75),
    (-19, 0, -54.75),
    (-51.01, 0, -71.771),
]))
fillet.Radius = 1

doc.recompute()
